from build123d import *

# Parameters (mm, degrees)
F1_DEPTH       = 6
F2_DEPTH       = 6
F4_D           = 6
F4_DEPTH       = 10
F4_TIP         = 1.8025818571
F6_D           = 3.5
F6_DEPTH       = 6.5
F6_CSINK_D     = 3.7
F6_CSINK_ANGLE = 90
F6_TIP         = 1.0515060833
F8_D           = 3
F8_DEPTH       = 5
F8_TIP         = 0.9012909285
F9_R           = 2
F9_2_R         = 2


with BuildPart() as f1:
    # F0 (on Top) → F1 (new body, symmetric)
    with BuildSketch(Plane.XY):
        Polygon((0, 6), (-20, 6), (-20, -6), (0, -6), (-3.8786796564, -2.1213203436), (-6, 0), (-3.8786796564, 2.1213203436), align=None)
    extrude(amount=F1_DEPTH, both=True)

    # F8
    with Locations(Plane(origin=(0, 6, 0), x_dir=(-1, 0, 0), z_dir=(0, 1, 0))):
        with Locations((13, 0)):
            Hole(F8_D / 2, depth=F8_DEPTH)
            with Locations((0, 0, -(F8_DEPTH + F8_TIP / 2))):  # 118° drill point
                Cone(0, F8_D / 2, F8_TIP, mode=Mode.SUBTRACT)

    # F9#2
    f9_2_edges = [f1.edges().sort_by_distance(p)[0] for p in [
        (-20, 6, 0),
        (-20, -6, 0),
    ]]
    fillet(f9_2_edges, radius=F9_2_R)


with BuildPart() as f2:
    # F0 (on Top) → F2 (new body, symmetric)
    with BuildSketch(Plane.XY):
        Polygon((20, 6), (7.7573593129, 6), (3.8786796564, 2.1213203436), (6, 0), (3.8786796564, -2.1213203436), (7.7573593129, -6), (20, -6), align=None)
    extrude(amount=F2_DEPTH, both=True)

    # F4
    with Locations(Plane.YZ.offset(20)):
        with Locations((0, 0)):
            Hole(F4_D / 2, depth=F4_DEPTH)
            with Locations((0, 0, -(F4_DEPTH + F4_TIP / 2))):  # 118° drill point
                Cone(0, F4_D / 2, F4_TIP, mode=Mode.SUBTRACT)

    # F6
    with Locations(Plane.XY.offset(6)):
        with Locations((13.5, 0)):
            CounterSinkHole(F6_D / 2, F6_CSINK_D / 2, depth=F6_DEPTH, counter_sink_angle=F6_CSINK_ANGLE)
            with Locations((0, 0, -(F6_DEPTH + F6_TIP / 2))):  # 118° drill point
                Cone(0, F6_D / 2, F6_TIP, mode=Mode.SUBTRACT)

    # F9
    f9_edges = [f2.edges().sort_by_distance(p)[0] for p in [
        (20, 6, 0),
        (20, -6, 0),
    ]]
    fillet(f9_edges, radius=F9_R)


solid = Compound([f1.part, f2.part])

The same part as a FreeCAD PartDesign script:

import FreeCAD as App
import Part
import Sketcher


def edges_at(feature, points):
    """Names of the edges that pass closest to the given points."""
    edges = feature.Shape.Edges
    near = lambda p: min(range(len(edges)), key=lambda i: edges[i].distToShape(Part.Vertex(*p))[0])
    return sorted({f"Edge{near(p) + 1}" for p in points})

doc = App.newDocument("Part")
body = doc.addObject("PartDesign::Body", "Body")

# Sketch on XY plane
sketch1 = body.newObject("Sketcher::SketchObject", "Sketch")
sketch1.AttachmentSupport = (doc.getObject("XY_Plane"), [""])
sketch1.MapMode = "FlatFace"
sketch1.addGeometry([
    Part.LineSegment(App.Vector(0, 6, 0), App.Vector(-20, 6, 0)),  # 0
    Part.LineSegment(App.Vector(-20, 6, 0), App.Vector(-20, -6, 0)),  # 1
    Part.LineSegment(App.Vector(-20, -6, 0), App.Vector(0, -6, 0)),  # 2
    Part.LineSegment(App.Vector(0, -6, 0), App.Vector(-6, 0, 0)),  # 3
    Part.LineSegment(App.Vector(-6, 0, 0), App.Vector(0, 6, 0)),  # 4
], False)
sketch1.addConstraint([
    Sketcher.Constraint("Coincident", 0, 2, 1, 1),
    Sketcher.Constraint("Coincident", 1, 2, 2, 1),
    Sketcher.Constraint("Coincident", 2, 2, 3, 1),
    Sketcher.Constraint("Coincident", 3, 2, 4, 1),
    Sketcher.Constraint("Coincident", 4, 2, 0, 1),
    Sketcher.Constraint("Horizontal", 0),
    Sketcher.Constraint("Vertical", 1),
    Sketcher.Constraint("Horizontal", 2),
    Sketcher.Constraint("Symmetric", 2, 2, 4, 2, -1, 1),
    Sketcher.Constraint("PointOnObject", 2, 2, -2),
    Sketcher.Constraint("PointOnObject", 3, 2, -1),
    Sketcher.Constraint("Perpendicular", 3, 4),
    Sketcher.Constraint("DistanceX", 0, 2, 0, 1, 20.0),
    Sketcher.Constraint("DistanceY", 1, 2, 1, 1, 12.0),
])
pad1 = body.newObject("PartDesign::Pad", "Pad")
pad1.Profile = sketch1
pad1.Length = 12
pad1.Midplane = True

# Sketch on XZ plane
sketch2 = body.newObject("Sketcher::SketchObject", "Sketch001")
sketch2.AttachmentSupport = (doc.getObject("XZ_Plane"), [""])
sketch2.MapMode = "FlatFace"
sketch2.AttachmentOffset = App.Placement(App.Vector(0, 0, -6), App.Rotation())
sketch2.addGeometry(Part.Circle(App.Vector(-13, 0, 0), App.Vector(0, 0, 1), 1.5), False)
sketch2.addConstraint([
    Sketcher.Constraint("PointOnObject", 0, 3, -1),
    Sketcher.Constraint("Diameter", 0, 3.0),
    Sketcher.Constraint("DistanceX", 0, 3, -1, 1, 13.0),
])
doc.recompute()
hole = body.newObject("PartDesign::Hole", "Hole")
hole.Profile = sketch2
hole.ThreadType = "None"
hole.Diameter = 3
hole.DepthType = "Dimension"
hole.Depth = 5
hole.DrillPoint = "Angled"
hole.DrillPointAngle = 118
hole.Reversed = True
doc.recompute()

fillet = body.newObject("PartDesign::Fillet", "Fillet")
fillet.Base = (hole, edges_at(hole, [(-20, 6, 0), (-20, -6, 0)]))
fillet.Radius = 2
body2 = doc.addObject("PartDesign::Body", "Body001")

# Sketch on XY plane
sketch3 = body2.newObject("Sketcher::SketchObject", "Sketch002")
sketch3.AttachmentSupport = (doc.getObject("XY_Plane001"), [""])
sketch3.MapMode = "FlatFace"
sketch3.addGeometry([
    Part.LineSegment(App.Vector(20, 6, 0), App.Vector(7.8, 6, 0)),  # 0
    Part.LineSegment(App.Vector(7.8, 6, 0), App.Vector(3.9, 2.1, 0)),  # 1
    Part.LineSegment(App.Vector(3.9, 2.1, 0), App.Vector(6, 0, 0)),  # 2
    Part.LineSegment(App.Vector(6, 0, 0), App.Vector(3.9, -2.1, 0)),  # 3
    Part.LineSegment(App.Vector(3.9, -2.1, 0), App.Vector(7.8, -6, 0)),  # 4
    Part.LineSegment(App.Vector(7.8, -6, 0), App.Vector(20, -6, 0)),  # 5
    Part.LineSegment(App.Vector(20, -6, 0), App.Vector(20, 6, 0)),  # 6
], False)
sketch3.addConstraint([
    Sketcher.Constraint("Coincident", 0, 2, 1, 1),
    Sketcher.Constraint("Coincident", 1, 2, 2, 1),
    Sketcher.Constraint("Coincident", 2, 2, 3, 1),
    Sketcher.Constraint("Coincident", 3, 2, 4, 1),
    Sketcher.Constraint("Coincident", 4, 2, 5, 1),
    Sketcher.Constraint("Coincident", 5, 2, 6, 1),
    Sketcher.Constraint("Coincident", 6, 2, 0, 1),
    Sketcher.Constraint("Horizontal", 0),
    Sketcher.Constraint("Horizontal", 5),
    Sketcher.Constraint("Vertical", 6),
    Sketcher.Constraint("Symmetric", 1, 2, 3, 2, -1),
    Sketcher.Constraint("Symmetric", 0, 2, 4, 2, -1),
    Sketcher.Constraint("PointOnObject", 2, 2, -1),
    Sketcher.Constraint("Perpendicular", 1, 2),
    Sketcher.Constraint("Perpendicular", 2, 3),
    Sketcher.Constraint("DistanceY", 6, 1, 6, 2, 12.0),
    Sketcher.Constraint("Distance", 2, 3.0),
    Sketcher.Constraint("DistanceX", -1, 1, 2, 2, 6.0),
    Sketcher.Constraint("DistanceX", -1, 1, 5, 2, 20.0),
])
pad2 = body2.newObject("PartDesign::Pad", "Pad001")
pad2.Profile = sketch3
pad2.Length = 12
pad2.Midplane = True

# Sketch on YZ plane
sketch4 = body2.newObject("Sketcher::SketchObject", "Sketch003")
sketch4.AttachmentSupport = (doc.getObject("YZ_Plane001"), [""])
sketch4.MapMode = "FlatFace"
sketch4.AttachmentOffset = App.Placement(App.Vector(0, 0, 20), App.Rotation())
sketch4.addGeometry(Part.Circle(App.Vector(0, 0, 0), App.Vector(0, 0, 1), 3), False)
sketch4.addConstraint([
    Sketcher.Constraint("Coincident", 0, 3, -1, 1),
    Sketcher.Constraint("Diameter", 0, 6.0),
])
doc.recompute()
hole2 = body2.newObject("PartDesign::Hole", "Hole001")
hole2.Profile = sketch4
hole2.ThreadType = "None"
hole2.Diameter = 6
hole2.DepthType = "Dimension"
hole2.Depth = 10
hole2.DrillPoint = "Angled"
hole2.DrillPointAngle = 118

# Sketch on XY plane
sketch5 = body2.newObject("Sketcher::SketchObject", "Sketch004")
sketch5.AttachmentSupport = (doc.getObject("XY_Plane001"), [""])
sketch5.MapMode = "FlatFace"
sketch5.AttachmentOffset = App.Placement(App.Vector(0, 0, 6), App.Rotation())
sketch5.addGeometry(Part.Circle(App.Vector(13.5, 0, 0), App.Vector(0, 0, 1), 1.8), False)
sketch5.addConstraint([
    Sketcher.Constraint("PointOnObject", 0, 3, -1),
    Sketcher.Constraint("Diameter", 0, 3.5),
    Sketcher.Constraint("DistanceX", -1, 1, 0, 3, 13.5),
])
doc.recompute()
hole3 = body2.newObject("PartDesign::Hole", "Hole002")
hole3.Profile = sketch5
hole3.ThreadType = "None"
hole3.Diameter = 3.5
hole3.DepthType = "Dimension"
hole3.Depth = 6.5
hole3.DrillPoint = "Angled"
hole3.DrillPointAngle = 118
hole3.HoleCutType = "Countersink"
hole3.HoleCutDiameter = 3.7
hole3.HoleCutCountersinkAngle = 90
doc.recompute()

fillet2 = body2.newObject("PartDesign::Fillet", "Fillet001")
fillet2.Base = (hole3, edges_at(hole3, [(20, 6, 0), (20, -6, 0)]))
fillet2.Radius = 2

doc.recompute()
